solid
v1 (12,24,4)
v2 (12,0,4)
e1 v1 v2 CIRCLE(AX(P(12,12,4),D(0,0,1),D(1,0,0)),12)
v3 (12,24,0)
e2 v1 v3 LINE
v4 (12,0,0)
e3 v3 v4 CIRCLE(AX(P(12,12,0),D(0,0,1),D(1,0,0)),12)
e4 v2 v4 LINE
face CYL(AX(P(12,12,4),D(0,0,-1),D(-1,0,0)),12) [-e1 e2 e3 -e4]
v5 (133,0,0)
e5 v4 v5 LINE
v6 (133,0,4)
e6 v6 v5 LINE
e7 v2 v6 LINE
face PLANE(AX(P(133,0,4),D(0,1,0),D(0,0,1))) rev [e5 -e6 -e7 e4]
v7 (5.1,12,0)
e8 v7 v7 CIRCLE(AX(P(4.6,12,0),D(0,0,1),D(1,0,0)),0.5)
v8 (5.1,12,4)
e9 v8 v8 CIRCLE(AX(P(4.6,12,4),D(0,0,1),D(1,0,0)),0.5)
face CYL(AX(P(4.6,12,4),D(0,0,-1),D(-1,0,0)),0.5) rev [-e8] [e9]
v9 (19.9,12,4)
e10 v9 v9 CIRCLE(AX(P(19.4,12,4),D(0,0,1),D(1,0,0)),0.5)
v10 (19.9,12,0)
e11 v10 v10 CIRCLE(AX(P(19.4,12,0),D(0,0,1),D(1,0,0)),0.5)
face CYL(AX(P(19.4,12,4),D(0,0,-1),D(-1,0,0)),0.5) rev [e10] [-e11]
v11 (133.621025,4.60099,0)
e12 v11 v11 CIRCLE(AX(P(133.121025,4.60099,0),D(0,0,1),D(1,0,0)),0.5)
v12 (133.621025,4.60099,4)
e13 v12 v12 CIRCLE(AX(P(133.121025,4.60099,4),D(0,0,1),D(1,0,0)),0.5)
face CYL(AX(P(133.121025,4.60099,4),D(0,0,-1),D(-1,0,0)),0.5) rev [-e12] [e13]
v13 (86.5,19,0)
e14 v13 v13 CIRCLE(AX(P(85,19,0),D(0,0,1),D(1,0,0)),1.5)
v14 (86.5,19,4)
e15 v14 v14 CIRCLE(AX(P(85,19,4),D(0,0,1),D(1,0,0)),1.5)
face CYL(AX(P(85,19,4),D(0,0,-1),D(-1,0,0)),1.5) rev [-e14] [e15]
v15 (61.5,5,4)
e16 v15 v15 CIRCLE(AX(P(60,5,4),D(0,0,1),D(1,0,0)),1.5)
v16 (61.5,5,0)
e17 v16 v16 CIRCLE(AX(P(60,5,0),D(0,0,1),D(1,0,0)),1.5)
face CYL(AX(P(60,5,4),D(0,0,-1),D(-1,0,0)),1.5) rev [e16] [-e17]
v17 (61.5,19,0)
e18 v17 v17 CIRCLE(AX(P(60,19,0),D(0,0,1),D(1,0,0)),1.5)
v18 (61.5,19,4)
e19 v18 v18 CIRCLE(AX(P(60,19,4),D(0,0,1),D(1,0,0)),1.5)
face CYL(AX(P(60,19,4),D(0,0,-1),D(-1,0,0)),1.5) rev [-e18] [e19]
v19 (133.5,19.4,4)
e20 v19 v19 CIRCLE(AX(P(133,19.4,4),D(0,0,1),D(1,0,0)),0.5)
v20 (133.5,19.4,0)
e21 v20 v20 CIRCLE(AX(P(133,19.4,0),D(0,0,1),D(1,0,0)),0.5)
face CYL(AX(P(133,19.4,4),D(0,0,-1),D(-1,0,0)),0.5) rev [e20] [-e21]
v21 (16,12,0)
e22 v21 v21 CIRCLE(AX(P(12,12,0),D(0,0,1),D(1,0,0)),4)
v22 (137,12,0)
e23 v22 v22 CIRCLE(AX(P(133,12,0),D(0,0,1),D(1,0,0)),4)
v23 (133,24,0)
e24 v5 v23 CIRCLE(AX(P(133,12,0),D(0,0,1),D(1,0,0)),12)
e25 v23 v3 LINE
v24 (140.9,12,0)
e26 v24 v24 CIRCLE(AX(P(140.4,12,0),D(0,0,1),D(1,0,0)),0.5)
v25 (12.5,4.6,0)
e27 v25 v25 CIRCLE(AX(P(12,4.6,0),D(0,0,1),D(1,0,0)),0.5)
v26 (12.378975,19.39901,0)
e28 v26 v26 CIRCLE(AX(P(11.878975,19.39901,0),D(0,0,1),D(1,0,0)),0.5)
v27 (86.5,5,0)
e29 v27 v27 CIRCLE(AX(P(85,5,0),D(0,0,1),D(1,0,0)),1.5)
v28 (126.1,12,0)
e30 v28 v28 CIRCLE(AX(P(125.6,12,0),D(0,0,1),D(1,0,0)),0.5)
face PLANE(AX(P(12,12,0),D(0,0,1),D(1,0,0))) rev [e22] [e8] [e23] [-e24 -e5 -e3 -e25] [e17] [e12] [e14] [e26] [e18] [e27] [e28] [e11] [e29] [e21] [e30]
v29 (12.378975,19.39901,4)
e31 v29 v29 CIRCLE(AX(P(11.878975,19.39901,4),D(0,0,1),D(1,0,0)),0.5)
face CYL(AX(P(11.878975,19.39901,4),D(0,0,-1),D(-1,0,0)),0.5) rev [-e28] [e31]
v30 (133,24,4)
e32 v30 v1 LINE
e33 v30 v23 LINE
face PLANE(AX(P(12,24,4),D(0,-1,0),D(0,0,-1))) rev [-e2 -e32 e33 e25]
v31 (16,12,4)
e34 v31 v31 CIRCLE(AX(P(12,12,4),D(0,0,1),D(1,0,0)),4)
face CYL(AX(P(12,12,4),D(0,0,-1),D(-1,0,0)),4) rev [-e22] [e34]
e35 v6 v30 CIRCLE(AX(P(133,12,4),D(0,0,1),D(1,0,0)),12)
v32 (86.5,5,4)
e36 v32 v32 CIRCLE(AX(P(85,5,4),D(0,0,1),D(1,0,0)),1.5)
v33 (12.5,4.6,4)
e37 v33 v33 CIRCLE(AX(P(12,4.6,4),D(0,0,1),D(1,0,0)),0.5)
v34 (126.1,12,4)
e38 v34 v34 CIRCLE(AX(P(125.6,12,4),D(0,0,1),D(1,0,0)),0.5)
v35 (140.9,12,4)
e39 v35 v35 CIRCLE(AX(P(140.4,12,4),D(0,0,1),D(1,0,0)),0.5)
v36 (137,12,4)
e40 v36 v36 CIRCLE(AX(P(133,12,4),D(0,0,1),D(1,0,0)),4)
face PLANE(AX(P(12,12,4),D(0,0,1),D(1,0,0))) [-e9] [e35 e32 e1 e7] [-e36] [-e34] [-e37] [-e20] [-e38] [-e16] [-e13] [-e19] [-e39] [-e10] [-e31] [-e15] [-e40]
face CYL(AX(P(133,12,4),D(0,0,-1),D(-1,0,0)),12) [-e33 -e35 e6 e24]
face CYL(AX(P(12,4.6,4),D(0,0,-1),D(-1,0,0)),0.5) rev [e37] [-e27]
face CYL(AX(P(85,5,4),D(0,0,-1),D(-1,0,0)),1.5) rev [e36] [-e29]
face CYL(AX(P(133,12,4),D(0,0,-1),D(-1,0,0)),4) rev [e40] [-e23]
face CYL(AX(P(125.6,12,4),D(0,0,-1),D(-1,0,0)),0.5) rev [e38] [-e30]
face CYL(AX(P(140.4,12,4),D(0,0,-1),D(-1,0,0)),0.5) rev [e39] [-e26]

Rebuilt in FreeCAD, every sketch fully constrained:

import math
import FreeCAD as App
import Part
import Sketcher

V = App.Vector

doc = App.newDocument("Part")
body = doc.addObject("PartDesign::Body", "Body")

sketch1 = doc.addObject("Sketcher::SketchObject", "Sketch")
body.addObject(sketch1)
sketch1.AttachmentSupport = (doc.XY_Plane, [""])
sketch1.MapMode = "FlatFace"
sketch1.addGeometry(Part.LineSegment(V(133, 24, 0), V(12, 24, 0)), False)
sketch1.addGeometry(Part.ArcOfCircle(Part.Circle(V(12, 12, 0), V(0, 0, 1), 12), math.radians(90), math.radians(270)), False)
sketch1.addGeometry(Part.LineSegment(V(12, 0, 0), V(133, 0, 0)), False)
sketch1.addGeometry(Part.ArcOfCircle(Part.Circle(V(133, 12, 0), V(0, 0, 1), 12), math.radians(-90), math.radians(90)), False)
sketch1.addGeometry(Part.Circle(V(133.1, 4.6, 0), V(0, 0, 1), 0.5), False)
sketch1.addGeometry(Part.Circle(V(85, 5, 0), V(0, 0, 1), 1.5), False)
sketch1.addGeometry(Part.Circle(V(60, 5, 0), V(0, 0, 1), 1.5), False)
sketch1.addGeometry(Part.Circle(V(12, 4.6, 0), V(0, 0, 1), 0.5), False)
sketch1.addGeometry(Part.Circle(V(140.4, 12, 0), V(0, 0, 1), 0.5), False)
sketch1.addGeometry(Part.Circle(V(133, 12, 0), V(0, 0, 1), 4), False)
sketch1.addGeometry(Part.Circle(V(125.6, 12, 0), V(0, 0, 1), 0.5), False)
sketch1.addGeometry(Part.Circle(V(133, 19.4, 0), V(0, 0, 1), 0.5), False)
sketch1.addGeometry(Part.Circle(V(85, 19, 0), V(0, 0, 1), 1.5), False)
sketch1.addGeometry(Part.Circle(V(19.4, 12, 0), V(0, 0, 1), 0.5), False)
sketch1.addGeometry(Part.Circle(V(12, 12, 0), V(0, 0, 1), 4), False)
sketch1.addGeometry(Part.Circle(V(4.6, 12, 0), V(0, 0, 1), 0.5), False)
sketch1.addGeometry(Part.Circle(V(60, 19, 0), V(0, 0, 1), 1.5), False)
sketch1.addGeometry(Part.Circle(V(11.9, 19.4, 0), V(0, 0, 1), 0.5), False)
sketch1.addConstraint(Sketcher.Constraint("Tangent", 0, 2, 1, 1))
sketch1.addConstraint(Sketcher.Constraint("Tangent", 1, 2, 2, 1))
sketch1.addConstraint(Sketcher.Constraint("Tangent", 2, 2, 3, 1))
sketch1.addConstraint(Sketcher.Constraint("Tangent", 3, 2, 0, 1))
sketch1.addConstraint(Sketcher.Constraint("Horizontal", 0))
sketch1.addConstraint(Sketcher.Constraint("Horizontal", 2))
sketch1.addConstraint(Sketcher.Constraint("Coincident", 9, 3, 3, 3))
sketch1.addConstraint(Sketcher.Constraint("Coincident", 14, 3, 1, 3))
sketch1.addConstraint(Sketcher.Constraint("Equal", 5, 6))
sketch1.addConstraint(Sketcher.Constraint("Equal", 4, 7))
sketch1.addConstraint(Sketcher.Constraint("Equal", 7, 8))
sketch1.addConstraint(Sketcher.Constraint("Equal", 8, 10))
sketch1.addConstraint(Sketcher.Constraint("Equal", 10, 11))
sketch1.addConstraint(Sketcher.Constraint("Equal", 6, 12))
sketch1.addConstraint(Sketcher.Constraint("Equal", 11, 13))
sketch1.addConstraint(Sketcher.Constraint("Equal", 9, 14))
sketch1.addConstraint(Sketcher.Constraint("Equal", 13, 15))
sketch1.addConstraint(Sketcher.Constraint("Equal", 12, 16))
sketch1.addConstraint(Sketcher.Constraint("Equal", 15, 17))
sketch1.addConstraint(Sketcher.Constraint("PointOnObject", 1, 2, -1))
sketch1.addConstraint(Sketcher.Constraint("Horizontal", 5, 3, 6, 3))
sketch1.addConstraint(Sketcher.Constraint("Horizontal", 3, 3, 8, 3))
sketch1.addConstraint(Sketcher.Constraint("Horizontal", 9, 3, 10, 3))
sketch1.addConstraint(Sketcher.Constraint("Horizontal", 10, 3, 13, 3))
sketch1.addConstraint(Sketcher.Constraint("Horizontal", 14, 3, 15, 3))
sketch1.addConstraint(Sketcher.Constraint("Horizontal", 12, 3, 16, 3))
sketch1.addConstraint(Sketcher.Constraint("Vertical", 1, 3, 7, 3))
sketch1.addConstraint(Sketcher.Constraint("Vertical", 9, 3, 11, 3))
sketch1.addConstraint(Sketcher.Constraint("Vertical", 5, 3, 12, 3))
sketch1.addConstraint(Sketcher.Constraint("Vertical", 6, 3, 16, 3))
sketch1.addConstraint(Sketcher.Constraint("Diameter", 4, 1.0))
sketch1.addConstraint(Sketcher.Constraint("Diameter", 5, 3.0))
sketch1.addConstraint(Sketcher.Constraint("Diameter", 9, 8.0))
sketch1.addConstraint(Sketcher.Constraint("Radius", 1, 12.0))
sketch1.addConstraint(Sketcher.Constraint("DistanceX", 0, 2, 0, 1, 121.0))
sketch1.addConstraint(Sketcher.Constraint("DistanceX", -1, 1, 1, 3, 12.0))
sketch1.addConstraint(Sketcher.Constraint("DistanceX", -1, 1, 5, 3, 85.0))
sketch1.addConstraint(Sketcher.Constraint("DistanceY", -1, 1, 5, 3, 5.0))
sketch1.addConstraint(Sketcher.Constraint("DistanceX", -1, 1, 6, 3, 60.0))
sketch1.addConstraint(Sketcher.Constraint("DistanceY", -1, 1, 12, 3, 19.0))
sketch1.addConstraint(Sketcher.Constraint("DistanceY", -1, 1, 7, 3, 4.6))
sketch1.addConstraint(Sketcher.Constraint("DistanceX", -1, 1, 8, 3, 140.4))
sketch1.addConstraint(Sketcher.Constraint("DistanceX", -1, 1, 10, 3, 125.6))
sketch1.addConstraint(Sketcher.Constraint("DistanceY", -1, 1, 11, 3, 19.4))
sketch1.addConstraint(Sketcher.Constraint("DistanceX", -1, 1, 13, 3, 19.4))
sketch1.addConstraint(Sketcher.Constraint("DistanceX", -1, 1, 15, 3, 4.6))
sketch1.addConstraint(Sketcher.Constraint("DistanceY", -1, 1, 4, 3, 4.60099))
sketch1.addConstraint(Sketcher.Constraint("DistanceY", -1, 1, 17, 3, 19.39901))
sketch1.addConstraint(Sketcher.Constraint("DistanceX", -1, 1, 4, 3, 133.121025))
sketch1.addConstraint(Sketcher.Constraint("DistanceX", -1, 1, 17, 3, 11.878975))
pad1 = doc.addObject("PartDesign::Pad", "Pad")
body.addObject(pad1)
pad1.Profile = sketch1
pad1.Length = 4

doc.recompute()
